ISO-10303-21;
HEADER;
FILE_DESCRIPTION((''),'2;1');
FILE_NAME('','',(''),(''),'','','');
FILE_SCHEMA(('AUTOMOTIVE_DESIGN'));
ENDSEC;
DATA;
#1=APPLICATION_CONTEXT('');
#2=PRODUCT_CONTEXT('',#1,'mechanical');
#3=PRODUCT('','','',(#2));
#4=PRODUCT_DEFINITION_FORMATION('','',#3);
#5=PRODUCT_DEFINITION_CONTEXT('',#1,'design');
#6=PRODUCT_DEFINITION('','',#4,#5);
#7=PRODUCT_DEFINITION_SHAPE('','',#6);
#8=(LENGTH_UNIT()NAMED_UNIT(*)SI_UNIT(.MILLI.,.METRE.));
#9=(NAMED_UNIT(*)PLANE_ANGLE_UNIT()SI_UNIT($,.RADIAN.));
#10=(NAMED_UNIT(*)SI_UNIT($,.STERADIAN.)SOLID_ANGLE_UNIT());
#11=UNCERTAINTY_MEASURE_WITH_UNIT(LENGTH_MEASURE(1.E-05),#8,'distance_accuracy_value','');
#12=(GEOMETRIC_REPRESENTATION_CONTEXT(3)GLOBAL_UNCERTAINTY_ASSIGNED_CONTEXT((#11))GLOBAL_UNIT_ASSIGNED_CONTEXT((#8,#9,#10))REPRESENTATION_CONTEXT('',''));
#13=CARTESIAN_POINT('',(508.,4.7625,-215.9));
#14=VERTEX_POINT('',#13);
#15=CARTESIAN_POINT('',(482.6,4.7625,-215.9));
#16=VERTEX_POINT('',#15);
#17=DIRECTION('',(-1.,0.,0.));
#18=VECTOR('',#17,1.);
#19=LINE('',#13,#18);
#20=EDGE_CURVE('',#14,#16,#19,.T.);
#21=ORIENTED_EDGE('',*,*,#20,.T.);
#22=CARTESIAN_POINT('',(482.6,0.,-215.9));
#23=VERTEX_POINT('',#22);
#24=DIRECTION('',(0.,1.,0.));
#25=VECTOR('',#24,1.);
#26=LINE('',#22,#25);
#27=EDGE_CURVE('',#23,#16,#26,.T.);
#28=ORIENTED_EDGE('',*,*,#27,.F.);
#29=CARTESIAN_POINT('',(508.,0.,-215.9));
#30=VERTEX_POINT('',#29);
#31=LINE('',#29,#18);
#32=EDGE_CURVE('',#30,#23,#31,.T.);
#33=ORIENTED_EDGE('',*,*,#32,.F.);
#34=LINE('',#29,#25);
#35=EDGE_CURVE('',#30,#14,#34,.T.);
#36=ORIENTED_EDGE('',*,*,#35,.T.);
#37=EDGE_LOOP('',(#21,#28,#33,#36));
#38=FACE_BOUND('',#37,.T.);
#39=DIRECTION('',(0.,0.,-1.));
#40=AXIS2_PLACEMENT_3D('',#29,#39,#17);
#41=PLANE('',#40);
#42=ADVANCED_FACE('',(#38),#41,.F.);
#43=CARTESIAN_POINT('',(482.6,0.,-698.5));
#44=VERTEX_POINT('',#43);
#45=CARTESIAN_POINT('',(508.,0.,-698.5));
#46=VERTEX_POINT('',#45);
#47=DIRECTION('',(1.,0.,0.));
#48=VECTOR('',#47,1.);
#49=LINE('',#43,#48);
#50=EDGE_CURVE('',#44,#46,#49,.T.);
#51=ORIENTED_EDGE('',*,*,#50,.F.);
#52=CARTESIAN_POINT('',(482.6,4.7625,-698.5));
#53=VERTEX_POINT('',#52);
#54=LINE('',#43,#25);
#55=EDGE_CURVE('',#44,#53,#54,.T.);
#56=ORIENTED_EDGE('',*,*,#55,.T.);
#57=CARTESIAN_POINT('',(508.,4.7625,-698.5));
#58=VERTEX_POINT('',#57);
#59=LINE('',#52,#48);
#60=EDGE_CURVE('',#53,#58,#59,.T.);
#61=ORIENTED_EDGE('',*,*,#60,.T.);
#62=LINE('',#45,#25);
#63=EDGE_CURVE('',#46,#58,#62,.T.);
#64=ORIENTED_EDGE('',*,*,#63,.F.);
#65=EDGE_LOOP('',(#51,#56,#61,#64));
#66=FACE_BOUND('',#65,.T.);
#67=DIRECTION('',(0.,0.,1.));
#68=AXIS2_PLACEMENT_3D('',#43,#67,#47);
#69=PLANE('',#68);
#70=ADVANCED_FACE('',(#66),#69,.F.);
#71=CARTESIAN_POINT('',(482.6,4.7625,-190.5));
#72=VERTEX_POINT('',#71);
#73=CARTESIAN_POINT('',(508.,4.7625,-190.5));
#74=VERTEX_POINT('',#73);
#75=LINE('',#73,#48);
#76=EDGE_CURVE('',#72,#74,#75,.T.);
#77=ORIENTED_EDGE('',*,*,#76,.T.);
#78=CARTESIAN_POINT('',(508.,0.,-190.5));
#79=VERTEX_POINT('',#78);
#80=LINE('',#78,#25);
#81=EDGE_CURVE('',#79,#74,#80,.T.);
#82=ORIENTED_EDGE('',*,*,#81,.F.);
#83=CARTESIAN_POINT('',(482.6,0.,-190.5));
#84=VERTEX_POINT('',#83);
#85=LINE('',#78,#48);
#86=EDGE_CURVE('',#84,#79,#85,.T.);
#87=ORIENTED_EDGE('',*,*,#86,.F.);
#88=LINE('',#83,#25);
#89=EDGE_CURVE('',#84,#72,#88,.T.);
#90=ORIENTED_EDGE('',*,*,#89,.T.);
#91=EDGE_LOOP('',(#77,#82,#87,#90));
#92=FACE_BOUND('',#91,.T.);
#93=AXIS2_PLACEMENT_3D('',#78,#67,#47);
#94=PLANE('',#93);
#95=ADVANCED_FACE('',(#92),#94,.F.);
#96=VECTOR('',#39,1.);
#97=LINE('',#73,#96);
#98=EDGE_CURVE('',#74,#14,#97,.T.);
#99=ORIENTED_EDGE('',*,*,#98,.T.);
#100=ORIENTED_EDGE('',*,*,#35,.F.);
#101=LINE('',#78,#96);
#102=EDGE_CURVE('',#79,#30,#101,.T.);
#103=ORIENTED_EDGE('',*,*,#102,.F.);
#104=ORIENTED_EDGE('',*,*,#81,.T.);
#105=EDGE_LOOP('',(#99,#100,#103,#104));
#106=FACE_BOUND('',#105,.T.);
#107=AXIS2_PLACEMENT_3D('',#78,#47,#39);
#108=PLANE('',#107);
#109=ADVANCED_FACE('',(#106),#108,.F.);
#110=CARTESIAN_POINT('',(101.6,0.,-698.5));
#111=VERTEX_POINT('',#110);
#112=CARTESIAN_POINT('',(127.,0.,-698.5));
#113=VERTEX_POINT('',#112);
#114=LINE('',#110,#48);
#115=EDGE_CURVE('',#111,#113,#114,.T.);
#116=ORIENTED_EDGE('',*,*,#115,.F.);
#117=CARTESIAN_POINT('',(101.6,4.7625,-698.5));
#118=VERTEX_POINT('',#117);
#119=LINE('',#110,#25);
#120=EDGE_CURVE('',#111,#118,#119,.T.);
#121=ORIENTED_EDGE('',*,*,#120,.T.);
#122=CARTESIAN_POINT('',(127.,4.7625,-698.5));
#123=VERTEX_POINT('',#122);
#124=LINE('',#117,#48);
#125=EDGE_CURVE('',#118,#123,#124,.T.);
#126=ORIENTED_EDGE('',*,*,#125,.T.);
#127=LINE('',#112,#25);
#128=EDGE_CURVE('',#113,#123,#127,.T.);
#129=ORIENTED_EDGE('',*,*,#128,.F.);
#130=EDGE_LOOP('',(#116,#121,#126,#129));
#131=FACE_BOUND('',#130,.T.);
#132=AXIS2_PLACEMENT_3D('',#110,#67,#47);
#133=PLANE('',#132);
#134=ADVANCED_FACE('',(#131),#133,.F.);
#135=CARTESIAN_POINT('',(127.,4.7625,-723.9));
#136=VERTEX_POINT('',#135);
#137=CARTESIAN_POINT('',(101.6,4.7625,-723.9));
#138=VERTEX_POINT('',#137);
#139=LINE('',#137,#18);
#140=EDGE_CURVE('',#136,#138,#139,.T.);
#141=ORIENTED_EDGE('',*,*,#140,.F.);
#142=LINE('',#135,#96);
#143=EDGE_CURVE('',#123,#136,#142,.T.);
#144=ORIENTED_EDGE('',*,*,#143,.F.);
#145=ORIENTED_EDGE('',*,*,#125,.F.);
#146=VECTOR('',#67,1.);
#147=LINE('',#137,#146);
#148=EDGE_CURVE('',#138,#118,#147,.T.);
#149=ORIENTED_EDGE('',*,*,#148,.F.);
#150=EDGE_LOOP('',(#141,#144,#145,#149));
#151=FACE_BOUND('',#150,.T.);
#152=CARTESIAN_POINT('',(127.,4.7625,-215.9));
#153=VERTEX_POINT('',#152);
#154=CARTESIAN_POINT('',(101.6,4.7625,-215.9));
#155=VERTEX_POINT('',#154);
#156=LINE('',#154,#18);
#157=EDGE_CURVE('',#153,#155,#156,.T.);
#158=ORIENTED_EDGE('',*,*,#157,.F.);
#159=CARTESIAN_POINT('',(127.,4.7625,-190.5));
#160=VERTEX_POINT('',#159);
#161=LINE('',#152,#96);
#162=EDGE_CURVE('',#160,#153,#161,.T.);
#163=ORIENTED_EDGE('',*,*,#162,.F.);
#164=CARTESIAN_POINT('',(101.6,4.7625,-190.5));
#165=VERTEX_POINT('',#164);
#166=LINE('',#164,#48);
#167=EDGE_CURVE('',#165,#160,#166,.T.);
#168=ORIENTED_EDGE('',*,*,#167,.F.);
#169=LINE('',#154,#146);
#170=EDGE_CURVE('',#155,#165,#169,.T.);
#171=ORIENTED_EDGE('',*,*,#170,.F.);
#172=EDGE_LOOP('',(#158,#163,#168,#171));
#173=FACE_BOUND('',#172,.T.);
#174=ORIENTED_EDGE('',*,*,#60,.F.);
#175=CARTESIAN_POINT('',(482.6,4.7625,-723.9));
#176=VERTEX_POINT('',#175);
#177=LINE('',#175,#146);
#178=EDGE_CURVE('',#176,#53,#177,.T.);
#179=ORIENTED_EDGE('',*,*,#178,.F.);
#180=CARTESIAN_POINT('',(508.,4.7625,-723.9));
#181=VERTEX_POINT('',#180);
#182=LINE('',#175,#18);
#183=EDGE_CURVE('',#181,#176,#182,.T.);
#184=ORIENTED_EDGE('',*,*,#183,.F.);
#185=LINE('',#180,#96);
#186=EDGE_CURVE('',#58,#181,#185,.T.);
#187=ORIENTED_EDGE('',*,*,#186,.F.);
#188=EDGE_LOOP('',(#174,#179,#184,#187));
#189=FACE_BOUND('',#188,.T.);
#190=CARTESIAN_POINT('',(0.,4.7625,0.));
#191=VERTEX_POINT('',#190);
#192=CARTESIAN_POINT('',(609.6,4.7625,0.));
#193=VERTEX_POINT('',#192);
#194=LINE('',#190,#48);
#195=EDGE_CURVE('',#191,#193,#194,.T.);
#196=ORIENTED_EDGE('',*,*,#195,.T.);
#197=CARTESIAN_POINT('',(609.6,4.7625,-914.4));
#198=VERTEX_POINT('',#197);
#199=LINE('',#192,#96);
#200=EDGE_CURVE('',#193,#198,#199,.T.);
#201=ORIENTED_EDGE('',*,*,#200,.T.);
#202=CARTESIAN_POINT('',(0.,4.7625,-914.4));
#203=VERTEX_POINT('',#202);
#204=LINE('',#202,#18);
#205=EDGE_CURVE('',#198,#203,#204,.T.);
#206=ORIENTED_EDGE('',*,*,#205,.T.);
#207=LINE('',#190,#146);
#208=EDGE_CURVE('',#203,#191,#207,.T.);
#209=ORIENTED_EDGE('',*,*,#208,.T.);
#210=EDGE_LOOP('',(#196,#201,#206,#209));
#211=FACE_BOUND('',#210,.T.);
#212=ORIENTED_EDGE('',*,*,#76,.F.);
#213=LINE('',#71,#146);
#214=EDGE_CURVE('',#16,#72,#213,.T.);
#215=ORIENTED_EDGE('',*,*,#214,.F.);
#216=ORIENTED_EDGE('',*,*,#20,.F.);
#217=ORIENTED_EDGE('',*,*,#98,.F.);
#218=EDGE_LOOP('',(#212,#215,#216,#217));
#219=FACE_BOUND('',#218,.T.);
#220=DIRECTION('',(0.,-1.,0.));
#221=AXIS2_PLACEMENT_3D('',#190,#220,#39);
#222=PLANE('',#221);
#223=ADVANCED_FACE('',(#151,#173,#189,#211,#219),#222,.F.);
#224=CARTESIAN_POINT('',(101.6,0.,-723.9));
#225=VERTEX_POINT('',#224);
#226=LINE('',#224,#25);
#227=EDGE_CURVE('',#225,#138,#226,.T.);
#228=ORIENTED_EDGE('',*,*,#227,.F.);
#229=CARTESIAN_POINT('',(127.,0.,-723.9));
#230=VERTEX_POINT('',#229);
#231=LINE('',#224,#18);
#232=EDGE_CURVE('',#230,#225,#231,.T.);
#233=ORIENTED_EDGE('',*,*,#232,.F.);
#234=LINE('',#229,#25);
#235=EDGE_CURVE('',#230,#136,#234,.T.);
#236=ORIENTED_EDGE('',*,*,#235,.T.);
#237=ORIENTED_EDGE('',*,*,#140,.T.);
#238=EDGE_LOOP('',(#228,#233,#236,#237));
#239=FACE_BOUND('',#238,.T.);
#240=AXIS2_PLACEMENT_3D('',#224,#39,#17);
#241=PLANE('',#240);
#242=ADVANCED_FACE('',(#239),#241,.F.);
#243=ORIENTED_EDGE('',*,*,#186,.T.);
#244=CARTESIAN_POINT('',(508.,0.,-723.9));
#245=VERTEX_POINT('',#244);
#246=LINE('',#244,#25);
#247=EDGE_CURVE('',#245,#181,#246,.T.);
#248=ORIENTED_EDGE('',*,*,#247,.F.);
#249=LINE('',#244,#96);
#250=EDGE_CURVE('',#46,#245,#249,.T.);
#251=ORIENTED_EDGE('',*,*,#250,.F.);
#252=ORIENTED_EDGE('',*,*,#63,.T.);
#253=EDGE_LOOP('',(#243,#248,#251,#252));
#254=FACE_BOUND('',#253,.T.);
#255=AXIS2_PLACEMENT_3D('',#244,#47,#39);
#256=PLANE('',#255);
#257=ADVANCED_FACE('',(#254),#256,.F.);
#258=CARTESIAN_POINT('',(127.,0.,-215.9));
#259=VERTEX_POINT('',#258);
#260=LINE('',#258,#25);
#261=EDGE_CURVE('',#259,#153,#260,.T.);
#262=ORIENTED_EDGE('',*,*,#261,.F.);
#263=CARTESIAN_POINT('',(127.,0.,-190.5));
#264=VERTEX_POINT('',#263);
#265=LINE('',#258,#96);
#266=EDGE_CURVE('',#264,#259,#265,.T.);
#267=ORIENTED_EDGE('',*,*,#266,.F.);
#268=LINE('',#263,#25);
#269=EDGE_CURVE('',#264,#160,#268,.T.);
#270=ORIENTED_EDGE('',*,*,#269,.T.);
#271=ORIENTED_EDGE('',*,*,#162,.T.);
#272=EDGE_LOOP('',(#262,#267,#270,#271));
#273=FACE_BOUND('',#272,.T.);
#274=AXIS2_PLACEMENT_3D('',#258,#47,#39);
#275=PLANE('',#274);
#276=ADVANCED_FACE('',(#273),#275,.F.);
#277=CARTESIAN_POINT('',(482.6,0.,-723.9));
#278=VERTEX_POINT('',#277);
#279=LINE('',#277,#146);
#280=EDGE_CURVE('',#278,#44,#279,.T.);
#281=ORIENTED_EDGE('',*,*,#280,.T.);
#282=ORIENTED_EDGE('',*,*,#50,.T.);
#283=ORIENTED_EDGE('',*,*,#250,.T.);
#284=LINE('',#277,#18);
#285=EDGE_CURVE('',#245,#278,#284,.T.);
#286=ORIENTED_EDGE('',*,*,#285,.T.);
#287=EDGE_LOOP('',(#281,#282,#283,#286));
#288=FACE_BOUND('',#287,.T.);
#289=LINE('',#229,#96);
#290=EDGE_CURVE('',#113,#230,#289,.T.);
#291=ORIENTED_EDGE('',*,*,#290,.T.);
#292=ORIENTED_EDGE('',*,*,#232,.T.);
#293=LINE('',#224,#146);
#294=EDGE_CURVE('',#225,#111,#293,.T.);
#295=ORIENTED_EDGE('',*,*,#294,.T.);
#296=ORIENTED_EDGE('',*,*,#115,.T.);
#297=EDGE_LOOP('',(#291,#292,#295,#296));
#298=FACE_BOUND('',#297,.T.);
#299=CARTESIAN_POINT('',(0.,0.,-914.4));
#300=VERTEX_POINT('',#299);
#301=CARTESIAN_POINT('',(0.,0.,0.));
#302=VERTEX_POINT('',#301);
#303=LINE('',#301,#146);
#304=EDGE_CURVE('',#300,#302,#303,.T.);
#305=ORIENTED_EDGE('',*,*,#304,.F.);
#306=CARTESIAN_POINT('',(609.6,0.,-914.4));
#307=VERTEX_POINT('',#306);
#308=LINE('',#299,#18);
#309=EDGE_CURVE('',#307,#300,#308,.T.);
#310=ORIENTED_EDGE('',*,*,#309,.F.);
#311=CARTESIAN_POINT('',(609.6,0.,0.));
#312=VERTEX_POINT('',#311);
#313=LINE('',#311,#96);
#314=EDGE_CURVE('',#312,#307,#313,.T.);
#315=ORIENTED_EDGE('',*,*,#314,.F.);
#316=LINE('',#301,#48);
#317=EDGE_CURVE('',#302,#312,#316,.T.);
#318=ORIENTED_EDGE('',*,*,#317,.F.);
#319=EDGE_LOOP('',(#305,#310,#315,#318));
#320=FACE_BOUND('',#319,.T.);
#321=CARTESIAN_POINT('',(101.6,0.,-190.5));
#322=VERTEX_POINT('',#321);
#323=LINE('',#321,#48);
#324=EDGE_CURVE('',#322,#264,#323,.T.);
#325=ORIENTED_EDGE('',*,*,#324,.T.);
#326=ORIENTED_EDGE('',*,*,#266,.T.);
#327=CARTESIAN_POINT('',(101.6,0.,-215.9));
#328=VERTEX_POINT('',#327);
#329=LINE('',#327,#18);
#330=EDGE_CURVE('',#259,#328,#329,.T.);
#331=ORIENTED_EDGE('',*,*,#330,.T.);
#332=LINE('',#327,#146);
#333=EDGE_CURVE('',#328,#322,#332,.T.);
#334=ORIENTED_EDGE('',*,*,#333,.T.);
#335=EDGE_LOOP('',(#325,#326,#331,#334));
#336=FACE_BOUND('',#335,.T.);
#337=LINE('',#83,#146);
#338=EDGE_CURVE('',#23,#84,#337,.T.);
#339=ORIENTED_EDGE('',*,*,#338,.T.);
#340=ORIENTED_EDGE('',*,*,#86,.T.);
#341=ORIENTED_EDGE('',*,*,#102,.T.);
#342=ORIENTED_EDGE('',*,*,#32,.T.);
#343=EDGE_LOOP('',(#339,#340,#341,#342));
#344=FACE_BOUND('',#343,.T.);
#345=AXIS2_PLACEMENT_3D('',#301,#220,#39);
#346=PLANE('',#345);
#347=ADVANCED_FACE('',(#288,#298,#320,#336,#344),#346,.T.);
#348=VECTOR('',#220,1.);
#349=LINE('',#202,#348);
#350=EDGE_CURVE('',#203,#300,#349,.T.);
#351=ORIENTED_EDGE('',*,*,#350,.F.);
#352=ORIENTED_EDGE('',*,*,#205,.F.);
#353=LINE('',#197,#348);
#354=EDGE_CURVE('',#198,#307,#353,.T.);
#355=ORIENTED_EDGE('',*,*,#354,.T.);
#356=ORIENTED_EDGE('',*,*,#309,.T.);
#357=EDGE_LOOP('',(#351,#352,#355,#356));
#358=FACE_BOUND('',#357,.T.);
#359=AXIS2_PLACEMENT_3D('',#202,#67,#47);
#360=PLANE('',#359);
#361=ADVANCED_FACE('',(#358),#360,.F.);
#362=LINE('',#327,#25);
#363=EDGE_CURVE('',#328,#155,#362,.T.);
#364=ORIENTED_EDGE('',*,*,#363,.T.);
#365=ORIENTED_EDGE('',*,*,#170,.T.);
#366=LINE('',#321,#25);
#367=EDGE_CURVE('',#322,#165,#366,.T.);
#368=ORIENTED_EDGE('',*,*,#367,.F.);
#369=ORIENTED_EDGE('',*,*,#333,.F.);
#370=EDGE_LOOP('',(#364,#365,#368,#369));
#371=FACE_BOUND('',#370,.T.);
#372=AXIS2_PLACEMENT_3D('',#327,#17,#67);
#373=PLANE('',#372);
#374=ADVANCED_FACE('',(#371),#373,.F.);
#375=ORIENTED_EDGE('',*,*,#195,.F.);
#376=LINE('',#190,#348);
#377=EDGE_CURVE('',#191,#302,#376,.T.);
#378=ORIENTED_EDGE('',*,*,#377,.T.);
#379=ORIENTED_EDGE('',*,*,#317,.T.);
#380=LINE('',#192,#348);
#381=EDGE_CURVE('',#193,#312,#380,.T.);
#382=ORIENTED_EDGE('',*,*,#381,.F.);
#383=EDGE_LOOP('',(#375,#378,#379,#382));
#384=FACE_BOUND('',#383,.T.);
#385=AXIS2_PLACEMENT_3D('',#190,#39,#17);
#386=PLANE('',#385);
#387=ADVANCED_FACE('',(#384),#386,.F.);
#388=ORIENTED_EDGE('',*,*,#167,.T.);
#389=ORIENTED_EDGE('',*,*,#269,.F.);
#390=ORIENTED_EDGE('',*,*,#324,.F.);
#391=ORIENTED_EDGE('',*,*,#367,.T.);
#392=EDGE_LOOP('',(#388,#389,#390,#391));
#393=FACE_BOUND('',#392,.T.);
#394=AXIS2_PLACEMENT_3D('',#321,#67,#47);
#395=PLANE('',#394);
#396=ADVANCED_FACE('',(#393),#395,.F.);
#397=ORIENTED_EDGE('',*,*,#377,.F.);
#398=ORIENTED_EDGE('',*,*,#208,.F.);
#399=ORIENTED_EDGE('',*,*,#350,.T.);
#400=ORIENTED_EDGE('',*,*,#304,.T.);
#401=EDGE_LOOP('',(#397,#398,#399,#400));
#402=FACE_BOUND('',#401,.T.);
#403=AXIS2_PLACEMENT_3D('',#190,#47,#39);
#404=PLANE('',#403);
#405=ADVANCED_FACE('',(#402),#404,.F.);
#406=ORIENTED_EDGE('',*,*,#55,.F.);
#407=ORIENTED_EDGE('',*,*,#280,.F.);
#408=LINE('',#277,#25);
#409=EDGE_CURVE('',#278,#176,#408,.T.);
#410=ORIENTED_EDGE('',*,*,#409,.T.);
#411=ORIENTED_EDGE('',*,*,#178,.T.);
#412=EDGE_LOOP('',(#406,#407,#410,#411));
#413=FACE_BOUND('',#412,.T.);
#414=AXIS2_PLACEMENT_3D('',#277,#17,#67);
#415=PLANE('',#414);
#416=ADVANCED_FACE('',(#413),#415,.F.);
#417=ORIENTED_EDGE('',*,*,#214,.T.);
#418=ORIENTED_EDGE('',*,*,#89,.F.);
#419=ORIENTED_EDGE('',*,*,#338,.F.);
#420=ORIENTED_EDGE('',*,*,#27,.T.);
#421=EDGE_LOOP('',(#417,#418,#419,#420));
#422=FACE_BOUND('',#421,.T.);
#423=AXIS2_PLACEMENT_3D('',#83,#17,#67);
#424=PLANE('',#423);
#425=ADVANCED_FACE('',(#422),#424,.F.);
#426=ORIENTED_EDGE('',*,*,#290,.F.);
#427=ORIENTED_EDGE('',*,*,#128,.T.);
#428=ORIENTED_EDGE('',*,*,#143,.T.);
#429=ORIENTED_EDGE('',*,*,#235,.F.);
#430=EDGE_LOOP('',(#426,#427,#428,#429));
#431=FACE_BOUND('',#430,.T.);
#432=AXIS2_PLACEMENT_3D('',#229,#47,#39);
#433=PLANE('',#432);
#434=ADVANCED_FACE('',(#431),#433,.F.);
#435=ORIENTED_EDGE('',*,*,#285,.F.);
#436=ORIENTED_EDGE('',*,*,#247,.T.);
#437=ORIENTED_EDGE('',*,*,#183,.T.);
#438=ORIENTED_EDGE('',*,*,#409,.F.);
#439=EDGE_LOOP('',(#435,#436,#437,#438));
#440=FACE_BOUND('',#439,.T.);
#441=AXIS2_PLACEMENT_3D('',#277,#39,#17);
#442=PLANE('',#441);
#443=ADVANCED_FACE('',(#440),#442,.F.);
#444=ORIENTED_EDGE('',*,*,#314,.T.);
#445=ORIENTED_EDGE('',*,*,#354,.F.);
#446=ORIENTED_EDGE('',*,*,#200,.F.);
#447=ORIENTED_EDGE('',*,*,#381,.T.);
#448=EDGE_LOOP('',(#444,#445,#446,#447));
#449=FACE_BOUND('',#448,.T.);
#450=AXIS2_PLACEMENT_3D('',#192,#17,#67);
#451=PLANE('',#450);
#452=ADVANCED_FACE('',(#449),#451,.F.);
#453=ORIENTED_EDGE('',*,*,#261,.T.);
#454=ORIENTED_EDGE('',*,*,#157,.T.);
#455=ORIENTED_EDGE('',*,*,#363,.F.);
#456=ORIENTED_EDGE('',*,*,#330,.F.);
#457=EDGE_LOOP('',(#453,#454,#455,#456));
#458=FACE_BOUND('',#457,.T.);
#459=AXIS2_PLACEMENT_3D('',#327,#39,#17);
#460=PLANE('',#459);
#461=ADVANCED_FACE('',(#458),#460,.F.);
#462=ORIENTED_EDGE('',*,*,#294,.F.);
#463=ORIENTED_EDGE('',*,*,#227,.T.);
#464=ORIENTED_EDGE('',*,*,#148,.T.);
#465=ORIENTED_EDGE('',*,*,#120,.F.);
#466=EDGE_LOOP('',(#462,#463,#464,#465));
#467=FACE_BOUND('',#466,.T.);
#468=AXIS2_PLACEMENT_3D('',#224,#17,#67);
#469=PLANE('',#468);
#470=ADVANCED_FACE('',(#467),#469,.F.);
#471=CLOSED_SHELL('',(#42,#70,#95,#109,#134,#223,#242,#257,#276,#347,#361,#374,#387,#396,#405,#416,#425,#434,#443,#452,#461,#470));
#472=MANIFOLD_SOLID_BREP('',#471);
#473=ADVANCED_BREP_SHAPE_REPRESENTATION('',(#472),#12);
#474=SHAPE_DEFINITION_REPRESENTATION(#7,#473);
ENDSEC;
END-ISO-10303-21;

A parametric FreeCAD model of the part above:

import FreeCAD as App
import Part
import Sketcher

V = App.Vector
Q = App.Units.Quantity


def add_polygon(sketch, points):
    """Adds a closed chain of lines whose ends are joined by coincident constraints."""
    first, n = sketch.GeometryCount, len(points)
    for a, b in zip(points, points[1:] + points[:1]):
        sketch.addGeometry(Part.LineSegment(App.Vector(*a, 0), App.Vector(*b, 0)), False)
    for i in range(n):
        sketch.addConstraint(Sketcher.Constraint("Coincident", first + i, 2, first + (i + 1) % n, 1))

doc = App.newDocument("Part")
body = doc.addObject("PartDesign::Body", "Body")

# Sketch on XZ plane
sketch1 = body.newObject("Sketcher::SketchObject", "Sketch")
sketch1.AttachmentSupport = (doc.getObject("XZ_Plane"), [""])
sketch1.MapMode = "FlatFace"
add_polygon(sketch1, [(0, -914.4), (0, 0), (609.6, 0), (609.6, -914.4)])  # lines 0-3
sketch1.addConstraint([
    Sketcher.Constraint("Vertical", 0),
    Sketcher.Constraint("Horizontal", 1),
    Sketcher.Constraint("Vertical", 2),
    Sketcher.Constraint("Horizontal", 3),
    Sketcher.Constraint("Coincident", 0, 2, -1, 1),
    Sketcher.Constraint("DistanceX", 1, 1, 1, 2, Q("24 in")),
    Sketcher.Constraint("DistanceY", 0, 1, 0, 2, Q("36 in")),
])
pad1 = body.newObject("PartDesign::Pad", "Pad")
pad1.Profile = sketch1
pad1.Length = Q("0.1875 in")
pad1.Reversed = True

# Sketch on XZ plane
sketch2 = body.newObject("Sketcher::SketchObject", "Sketch001")
sketch2.AttachmentSupport = (doc.getObject("XZ_Plane"), [""])
sketch2.MapMode = "FlatFace"
sketch2.AttachmentOffset = App.Placement(V(0, 0, -0.1875 * 25.4), App.Rotation())
add_polygon(sketch2, [(101.6, -723.9), (101.6, -698.5), (127, -698.5), (127, -723.9)])  # lines 0-3
add_polygon(sketch2, [(482.6, -723.9), (482.6, -698.5), (508, -698.5), (508, -723.9)])  # lines 4-7
add_polygon(sketch2, [(101.6, -215.9), (101.6, -190.5), (127, -190.5), (127, -215.9)])  # lines 8-11
add_polygon(sketch2, [(482.6, -215.9), (482.6, -190.5), (508, -190.5), (508, -215.9)])  # lines 12-15
sketch2.addConstraint([
    Sketcher.Constraint("Vertical", 0),
    Sketcher.Constraint("Horizontal", 1),
    Sketcher.Constraint("Vertical", 2),
    Sketcher.Constraint("Horizontal", 3),
    Sketcher.Constraint("Vertical", 4),
    Sketcher.Constraint("Horizontal", 5),
    Sketcher.Constraint("Vertical", 6),
    Sketcher.Constraint("Horizontal", 7),
    Sketcher.Constraint("Vertical", 8),
    Sketcher.Constraint("Horizontal", 9),
    Sketcher.Constraint("Vertical", 10),
    Sketcher.Constraint("Horizontal", 11),
    Sketcher.Constraint("Vertical", 12),
    Sketcher.Constraint("Horizontal", 13),
    Sketcher.Constraint("Vertical", 14),
    Sketcher.Constraint("Horizontal", 15),
    Sketcher.Constraint("Horizontal", 1, 2, 4, 2),
    Sketcher.Constraint("Horizontal", 3, 2, 6, 2),
    Sketcher.Constraint("Horizontal", 9, 2, 12, 2),
    Sketcher.Constraint("Horizontal", 11, 2, 14, 2),
    Sketcher.Constraint("Vertical", 3, 2, 8, 2),
    Sketcher.Constraint("Vertical", 2, 2, 9, 2),
    Sketcher.Constraint("Vertical", 7, 2, 12, 2),
    Sketcher.Constraint("Vertical", 6, 2, 13, 2),
    Sketcher.Constraint("Equal", 3, 5),
    Sketcher.Constraint("Equal", 15, 0),
    Sketcher.Constraint("Equal", 6, 8),
    Sketcher.Constraint("DistanceX", 1, 1, 1, 2, Q("1 in")),
    Sketcher.Constraint("DistanceX", -1, 1, 0, 2, Q("4 in")),
    Sketcher.Constraint("DistanceX", -1, 1, 4, 2, Q("19 in")),
    Sketcher.Constraint("DistanceY", 0, 2, 8, 2, Q("20 in")),
    Sketcher.Constraint("DistanceY", 0, 2, -1, 1, Q("27.5 in")),
])
pocket1 = body.newObject("PartDesign::Pocket", "Pocket")
pocket1.Profile = sketch2
pocket1.Type = "ThroughAll"
pocket1.Reversed = True

doc.recompute()
